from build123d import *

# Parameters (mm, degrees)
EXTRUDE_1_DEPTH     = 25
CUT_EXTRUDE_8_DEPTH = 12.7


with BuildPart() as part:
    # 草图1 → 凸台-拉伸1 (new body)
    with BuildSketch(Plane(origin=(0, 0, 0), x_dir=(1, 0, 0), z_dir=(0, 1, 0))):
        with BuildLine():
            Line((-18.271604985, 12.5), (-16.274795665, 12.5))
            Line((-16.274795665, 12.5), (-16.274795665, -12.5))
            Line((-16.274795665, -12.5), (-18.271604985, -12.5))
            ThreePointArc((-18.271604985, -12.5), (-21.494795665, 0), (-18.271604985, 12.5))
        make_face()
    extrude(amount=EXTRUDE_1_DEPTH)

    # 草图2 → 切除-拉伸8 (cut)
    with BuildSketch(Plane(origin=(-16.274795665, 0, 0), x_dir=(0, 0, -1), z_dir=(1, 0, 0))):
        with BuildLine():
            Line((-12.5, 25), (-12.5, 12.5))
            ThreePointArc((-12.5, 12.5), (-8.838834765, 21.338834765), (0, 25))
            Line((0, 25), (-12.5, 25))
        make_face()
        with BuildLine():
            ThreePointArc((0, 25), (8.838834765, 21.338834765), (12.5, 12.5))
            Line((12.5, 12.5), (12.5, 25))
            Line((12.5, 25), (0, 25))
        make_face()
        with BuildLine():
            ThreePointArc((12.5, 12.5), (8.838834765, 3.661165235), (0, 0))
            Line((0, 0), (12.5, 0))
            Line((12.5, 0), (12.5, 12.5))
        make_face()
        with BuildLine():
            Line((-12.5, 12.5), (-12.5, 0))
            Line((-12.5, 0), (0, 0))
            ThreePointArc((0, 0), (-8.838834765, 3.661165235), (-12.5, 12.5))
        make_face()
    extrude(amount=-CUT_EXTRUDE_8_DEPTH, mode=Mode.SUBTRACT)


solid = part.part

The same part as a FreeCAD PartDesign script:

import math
import FreeCAD as App
import Part
import Sketcher

doc = App.newDocument("Part")
params = doc.addObject("Spreadsheet::Sheet", "Params")
for row, (alias, value) in enumerate([
    ("sketch1_height", "25 mm"),
    ("sketch1_radius", "25.85 mm"),
    ("pad1_length", "25 mm"),
    ("sketch2_radius", "12.5 mm"),
    ("pocket1_length", "12.7 mm"),
], start=1):
    params.set(f"A{row}", alias)
    params.set(f"B{row}", "=" + value)
    params.setAlias(f"B{row}", alias)

body = doc.addObject("PartDesign::Body", "Body")

# Sketch on XZ plane
sketch1 = body.newObject("Sketcher::SketchObject", "Sketch")
sketch1.AttachmentSupport = (doc.getObject("XZ_Plane"), [""])
sketch1.MapMode = "FlatFace"
sketch1.addGeometry([
    Part.LineSegment(App.Vector(-16.3, -12.5, 0), App.Vector(-18.3, -12.5, 0)),
    Part.ArcOfCircle(Part.Circle(App.Vector(4.4, 0, 0), App.Vector(0, 0, 1), 25.9), math.radians(151), math.radians(209)),
    Part.LineSegment(App.Vector(-18.3, 12.5, 0), App.Vector(-16.3, 12.5, 0)),
    Part.LineSegment(App.Vector(-16.3, 12.5, 0), App.Vector(-16.3, -12.5, 0)),
], False)
sketch1.addConstraint([
    Sketcher.Constraint("Coincident", 0, 2, 1, 2),
    Sketcher.Constraint("Coincident", 1, 1, 2, 1),
    Sketcher.Constraint("Coincident", 2, 2, 3, 1),
    Sketcher.Constraint("Coincident", 3, 2, 0, 1),
    Sketcher.Constraint("Horizontal", 0),
    Sketcher.Constraint("Horizontal", 2),
    Sketcher.Constraint("Vertical", 3),
    Sketcher.Constraint("Symmetric", 0, 2, 1, 1, -1),
    Sketcher.Constraint("DistanceY", 3, 2, 3, 1, 25.0),
    Sketcher.Constraint("Radius", 1, 25.85),
    Sketcher.Constraint("DistanceX", 2, 2, 1, 3, 20.63),
    Sketcher.Constraint("DistanceX", -1, 1, 1, 3, 4.355204),
])
sketch1.setExpression("Constraints[8]", "Params.sketch1_height")
sketch1.setExpression("Constraints[9]", "Params.sketch1_radius")
pad1 = body.newObject("PartDesign::Pad", "Pad")
pad1.Profile = sketch1
pad1.setExpression("Length", "Params.pad1_length")
pad1.Reversed = True

# Sketch on YZ plane
sketch2 = body.newObject("Sketcher::SketchObject", "Sketch001")
sketch2.AttachmentSupport = (doc.getObject("YZ_Plane"), [""])
sketch2.MapMode = "FlatFace"
sketch2.AttachmentOffset = App.Placement(App.Vector(0, 0, -16.274796), App.Rotation())
sketch2.addGeometry([
    Part.LineSegment(App.Vector(25, 12, 0), App.Vector(12, 12, 0)),  # 0
    Part.ArcOfCircle(Part.Circle(App.Vector(13, 0, 0), App.Vector(0, 0, 1), 12), math.radians(0), math.radians(90)),  # 1
    Part.LineSegment(App.Vector(25, 0, 0), App.Vector(25, 12, 0)),  # 2
    Part.ArcOfCircle(Part.Circle(App.Vector(13, 0, 0), App.Vector(0, 0, 1), 12), math.radians(-90), math.radians(0)),  # 3
    Part.LineSegment(App.Vector(12, -12, 0), App.Vector(25, -12, 0)),  # 4
    Part.LineSegment(App.Vector(25, -12, 0), App.Vector(25, 0, 0)),  # 5
    Part.ArcOfCircle(Part.Circle(App.Vector(12, 0, 0), App.Vector(0, 0, 1), 12), math.radians(180), math.radians(270)),  # 6
    Part.LineSegment(App.Vector(0, 0, 0), App.Vector(0, -12, 0)),  # 7
    Part.LineSegment(App.Vector(0, -12, 0), App.Vector(12, -12, 0)),  # 8
    Part.LineSegment(App.Vector(12, 12, 0), App.Vector(0, 12, 0)),  # 9
    Part.LineSegment(App.Vector(0, 12, 0), App.Vector(0, 0, 0)),  # 10
    Part.ArcOfCircle(Part.Circle(App.Vector(12, 0, 0), App.Vector(0, 0, 1), 12), math.radians(90), math.radians(180)),  # 11
], False)
sketch2.addConstraint([
    Sketcher.Constraint("Tangent", 0, 2, 1, 2),
    Sketcher.Constraint("Tangent", 1, 1, 2, 1),
    Sketcher.Constraint("Coincident", 2, 2, 0, 1),
    Sketcher.Constraint("Tangent", 3, 1, 4, 1),
    Sketcher.Constraint("Coincident", 4, 2, 5, 1),
    Sketcher.Constraint("Tangent", 5, 2, 3, 2),
    Sketcher.Constraint("Tangent", 6, 1, 7, 1),
    Sketcher.Constraint("Coincident", 7, 2, 8, 1),
    Sketcher.Constraint("Tangent", 8, 2, 6, 2),
    Sketcher.Constraint("Coincident", 9, 2, 10, 1),
    Sketcher.Constraint("Tangent", 10, 2, 11, 2),
    Sketcher.Constraint("Tangent", 11, 1, 9, 1),
    Sketcher.Constraint("Horizontal", 0),
    Sketcher.Constraint("Vertical", 2),
    Sketcher.Constraint("Horizontal", 4),
    Sketcher.Constraint("Vertical", 5),
    Sketcher.Constraint("Vertical", 7),
    Sketcher.Constraint("Horizontal", 8),
    Sketcher.Constraint("Horizontal", 9),
    Sketcher.Constraint("Vertical", 10),
    Sketcher.Constraint("Coincident", 6, 1, -1, 1),
    Sketcher.Constraint("Coincident", 10, 2, -1, 1),
    Sketcher.Constraint("Coincident", 3, 3, 1, 3),
    Sketcher.Constraint("Coincident", 6, 3, 1, 3),
    Sketcher.Constraint("Coincident", 11, 1, 0, 2),
    Sketcher.Constraint("Equal", 1, 3),
    Sketcher.Constraint("Radius", 1, 12.5),
])
sketch2.setExpression("Constraints[26]", "Params.sketch2_radius")
pocket1 = body.newObject("PartDesign::Pocket", "Pocket")
pocket1.Profile = sketch2
pocket1.setExpression("Length", "Params.pocket1_length")

doc.recompute()
